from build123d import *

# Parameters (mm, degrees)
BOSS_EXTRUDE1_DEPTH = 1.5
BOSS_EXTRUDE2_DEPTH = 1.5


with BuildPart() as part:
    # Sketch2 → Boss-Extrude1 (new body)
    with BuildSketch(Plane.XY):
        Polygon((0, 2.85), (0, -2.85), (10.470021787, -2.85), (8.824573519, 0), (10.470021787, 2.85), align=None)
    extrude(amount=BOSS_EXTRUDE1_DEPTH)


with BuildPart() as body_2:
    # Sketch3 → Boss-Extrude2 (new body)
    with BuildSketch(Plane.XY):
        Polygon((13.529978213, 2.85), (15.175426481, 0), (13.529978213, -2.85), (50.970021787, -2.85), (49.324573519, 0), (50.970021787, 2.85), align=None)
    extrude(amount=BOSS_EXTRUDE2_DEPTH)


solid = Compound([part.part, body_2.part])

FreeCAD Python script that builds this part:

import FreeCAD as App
import Part
import Sketcher
from FreeCAD import Vector
Q = App.Units.Quantity


def add_polygon(sketch, points):
    """Adds a closed chain of lines whose ends are joined by coincident constraints."""
    first, n = sketch.GeometryCount, len(points)
    for a, b in zip(points, points[1:] + points[:1]):
        sketch.addGeometry(Part.LineSegment(App.Vector(*a, 0), App.Vector(*b, 0)), False)
    for i in range(n):
        sketch.addConstraint(Sketcher.Constraint("Coincident", first + i, 2, first + (i + 1) % n, 1))

doc = App.newDocument("Part")
body = doc.addObject("PartDesign::Body", "Body")

sketch1 = body.newObject("Sketcher::SketchObject", "Sketch")
sketch1.AttachmentSupport = (doc.getObject("XY_Plane"), [""])
sketch1.MapMode = "FlatFace"
add_polygon(sketch1, [(0, 2.9), (0, -2.9), (10.5, -2.9), (8.8, 0), (10.5, 2.9)])
sketch1.addConstraint([
    Sketcher.Constraint("Vertical", 0),
    Sketcher.Constraint("Horizontal", 1),
    Sketcher.Constraint("Horizontal", 4),
    Sketcher.Constraint("Symmetric", 0, 2, 4, 2, -1, 1),
    Sketcher.Constraint("PointOnObject", 2, 2, -1),
    Sketcher.Constraint("Vertical", 1, 2, 3, 2),
    Sketcher.Constraint("Angle", 2, Q("120 deg")),
    Sketcher.Constraint("DistanceY", 0, 2, 0, 1, 5.7),
    Sketcher.Constraint("DistanceX", 1, 1, 1, 2, 10.470022),
])
pad1 = body.newObject("PartDesign::Pad", "Pad")
pad1.Profile = sketch1
pad1.Length = 1.5
body2 = doc.addObject("PartDesign::Body", "Body001")

sketch2 = body2.newObject("Sketcher::SketchObject", "Sketch001")
sketch2.AttachmentSupport = (doc.getObject("XY_Plane001"), [""])
sketch2.MapMode = "FlatFace"
add_polygon(sketch2, [(13.5, 2.9), (15.2, 0), (13.5, -2.9), (51, -2.9), (49.3, 0), (51, 2.9)])
sketch2.addConstraint([
    Sketcher.Constraint("Horizontal", 2),
    Sketcher.Constraint("Horizontal", 5),
    Sketcher.Constraint("Symmetric", 2, 2, 4, 2, -1),
    Sketcher.Constraint("PointOnObject", 0, 2, -1),
    Sketcher.Constraint("PointOnObject", 3, 2, -1),
    Sketcher.Constraint("Parallel", 0, 3),
    Sketcher.Constraint("Parallel", 1, 4),
    Sketcher.Constraint("Angle", 0, Q("-60 deg")),
    Sketcher.Constraint("DistanceY", 2, 2, 4, 2, 5.7),
    Sketcher.Constraint("DistanceX", 2, 1, 2, 2, 37.440044),
    Sketcher.Constraint("DistanceX", -1, 1, 1, 2, 13.529978),
])
pad2 = body2.newObject("PartDesign::Pad", "Pad001")
pad2.Profile = sketch2
pad2.Length = 1.5

doc.recompute()
